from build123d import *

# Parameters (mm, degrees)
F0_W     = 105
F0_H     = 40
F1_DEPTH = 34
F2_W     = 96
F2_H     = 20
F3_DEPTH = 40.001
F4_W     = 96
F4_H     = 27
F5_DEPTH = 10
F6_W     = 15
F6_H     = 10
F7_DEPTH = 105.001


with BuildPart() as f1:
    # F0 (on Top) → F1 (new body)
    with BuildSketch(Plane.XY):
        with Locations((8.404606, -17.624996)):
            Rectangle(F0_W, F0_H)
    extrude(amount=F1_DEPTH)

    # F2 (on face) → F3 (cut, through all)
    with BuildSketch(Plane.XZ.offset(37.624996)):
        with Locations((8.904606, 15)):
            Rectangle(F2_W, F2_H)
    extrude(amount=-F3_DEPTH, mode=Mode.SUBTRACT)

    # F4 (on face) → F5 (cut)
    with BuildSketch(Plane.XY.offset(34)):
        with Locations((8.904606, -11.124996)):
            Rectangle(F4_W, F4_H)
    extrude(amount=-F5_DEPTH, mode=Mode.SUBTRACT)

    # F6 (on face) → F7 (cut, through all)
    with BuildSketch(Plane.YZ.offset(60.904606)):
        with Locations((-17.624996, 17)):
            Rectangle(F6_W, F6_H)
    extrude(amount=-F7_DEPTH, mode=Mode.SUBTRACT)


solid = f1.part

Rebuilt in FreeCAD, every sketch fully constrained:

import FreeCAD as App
import Part
import Sketcher


def add_polygon(sketch, points):
    """Adds a closed chain of lines whose ends are joined by coincident constraints."""
    first, n = sketch.GeometryCount, len(points)
    for a, b in zip(points, points[1:] + points[:1]):
        sketch.addGeometry(Part.LineSegment(App.Vector(*a, 0), App.Vector(*b, 0)), False)
    for i in range(n):
        sketch.addConstraint(Sketcher.Constraint("Coincident", first + i, 2, first + (i + 1) % n, 1))

doc = App.newDocument("Part")
body = doc.addObject("PartDesign::Body", "Body")

sketch1 = body.newObject("Sketcher::SketchObject", "Sketch")
sketch1.AttachmentSupport = (doc.getObject("XY_Plane"), [""])
sketch1.MapMode = "FlatFace"
add_polygon(sketch1, [(-44.095394, 2.375004), (-44.095394, -37.624996), (60.904606, -37.624996), (60.904606, 2.375004)])
sketch1.addConstraint([
    Sketcher.Constraint("Vertical", 0),
    Sketcher.Constraint("Horizontal", 1),
    Sketcher.Constraint("Vertical", 2),
    Sketcher.Constraint("Horizontal", 3),
    Sketcher.Constraint("DistanceX", 1, 1, 1, 2, 105.0),
    Sketcher.Constraint("DistanceY", 0, 2, 0, 1, 40.0),
    Sketcher.Constraint("DistanceX", 0, 2, -1, 1, 44.095394),
    Sketcher.Constraint("DistanceY", 0, 2, -1, 1, 37.624996),
])
pad1 = body.newObject("PartDesign::Pad", "Pad")
pad1.Profile = sketch1
pad1.Length = 34

sketch2 = body.newObject("Sketcher::SketchObject", "Sketch001")
sketch2.AttachmentSupport = (doc.getObject("XZ_Plane"), [""])
sketch2.MapMode = "FlatFace"
sketch2.AttachmentOffset = App.Placement(App.Vector(0, 0, 37.624996), App.Rotation())
add_polygon(sketch2, [(-39.095394, 25), (-39.095394, 5), (56.904606, 5), (56.904606, 25)])
sketch2.addConstraint([
    Sketcher.Constraint("Vertical", 0),
    Sketcher.Constraint("Horizontal", 1),
    Sketcher.Constraint("Vertical", 2),
    Sketcher.Constraint("Horizontal", 3),
    Sketcher.Constraint("DistanceX", 1, 1, 1, 2, 96.0),
    Sketcher.Constraint("DistanceY", 0, 2, 0, 1, 20.0),
    Sketcher.Constraint("DistanceY", -1, 1, 0, 2, 5.0),
    Sketcher.Constraint("DistanceX", 0, 2, -1, 1, 39.095394),
])
pocket1 = body.newObject("PartDesign::Pocket", "Pocket")
pocket1.Profile = sketch2
pocket1.Type = "ThroughAll"

sketch3 = body.newObject("Sketcher::SketchObject", "Sketch002")
sketch3.AttachmentSupport = (doc.getObject("XY_Plane"), [""])
sketch3.MapMode = "FlatFace"
sketch3.AttachmentOffset = App.Placement(App.Vector(0, 0, 34), App.Rotation())
add_polygon(sketch3, [(-39.095394, 2.375004), (-39.095394, -24.624996), (56.904606, -24.624996), (56.904606, 2.375004)])
sketch3.addConstraint([
    Sketcher.Constraint("Vertical", 0),
    Sketcher.Constraint("Horizontal", 1),
    Sketcher.Constraint("Vertical", 2),
    Sketcher.Constraint("Horizontal", 3),
    Sketcher.Constraint("DistanceX", 1, 1, 1, 2, 96.0),
    Sketcher.Constraint("DistanceY", 0, 2, 0, 1, 27.0),
    Sketcher.Constraint("DistanceX", 0, 2, -1, 1, 39.095394),
    Sketcher.Constraint("DistanceY", 0, 2, -1, 1, 24.624996),
])
pocket2 = body.newObject("PartDesign::Pocket", "Pocket001")
pocket2.Profile = sketch3
pocket2.Length = 10

sketch4 = body.newObject("Sketcher::SketchObject", "Sketch003")
sketch4.AttachmentSupport = (doc.getObject("YZ_Plane"), [""])
sketch4.MapMode = "FlatFace"
sketch4.AttachmentOffset = App.Placement(App.Vector(0, 0, 60.904606), App.Rotation())
add_polygon(sketch4, [(-25.124996, 22), (-25.124996, 12), (-10.124996, 12), (-10.124996, 22)])
sketch4.addConstraint([
    Sketcher.Constraint("Vertical", 0),
    Sketcher.Constraint("Horizontal", 1),
    Sketcher.Constraint("Vertical", 2),
    Sketcher.Constraint("Horizontal", 3),
    Sketcher.Constraint("DistanceX", 1, 1, 1, 2, 15.0),
    Sketcher.Constraint("DistanceY", 0, 2, 0, 1, 10.0),
    Sketcher.Constraint("DistanceY", -1, 1, 0, 2, 12.0),
    Sketcher.Constraint("DistanceX", 0, 2, -1, 1, 25.124996),
])
pocket3 = body.newObject("PartDesign::Pocket", "Pocket002")
pocket3.Profile = sketch4
pocket3.Type = "ThroughAll"

doc.recompute()
